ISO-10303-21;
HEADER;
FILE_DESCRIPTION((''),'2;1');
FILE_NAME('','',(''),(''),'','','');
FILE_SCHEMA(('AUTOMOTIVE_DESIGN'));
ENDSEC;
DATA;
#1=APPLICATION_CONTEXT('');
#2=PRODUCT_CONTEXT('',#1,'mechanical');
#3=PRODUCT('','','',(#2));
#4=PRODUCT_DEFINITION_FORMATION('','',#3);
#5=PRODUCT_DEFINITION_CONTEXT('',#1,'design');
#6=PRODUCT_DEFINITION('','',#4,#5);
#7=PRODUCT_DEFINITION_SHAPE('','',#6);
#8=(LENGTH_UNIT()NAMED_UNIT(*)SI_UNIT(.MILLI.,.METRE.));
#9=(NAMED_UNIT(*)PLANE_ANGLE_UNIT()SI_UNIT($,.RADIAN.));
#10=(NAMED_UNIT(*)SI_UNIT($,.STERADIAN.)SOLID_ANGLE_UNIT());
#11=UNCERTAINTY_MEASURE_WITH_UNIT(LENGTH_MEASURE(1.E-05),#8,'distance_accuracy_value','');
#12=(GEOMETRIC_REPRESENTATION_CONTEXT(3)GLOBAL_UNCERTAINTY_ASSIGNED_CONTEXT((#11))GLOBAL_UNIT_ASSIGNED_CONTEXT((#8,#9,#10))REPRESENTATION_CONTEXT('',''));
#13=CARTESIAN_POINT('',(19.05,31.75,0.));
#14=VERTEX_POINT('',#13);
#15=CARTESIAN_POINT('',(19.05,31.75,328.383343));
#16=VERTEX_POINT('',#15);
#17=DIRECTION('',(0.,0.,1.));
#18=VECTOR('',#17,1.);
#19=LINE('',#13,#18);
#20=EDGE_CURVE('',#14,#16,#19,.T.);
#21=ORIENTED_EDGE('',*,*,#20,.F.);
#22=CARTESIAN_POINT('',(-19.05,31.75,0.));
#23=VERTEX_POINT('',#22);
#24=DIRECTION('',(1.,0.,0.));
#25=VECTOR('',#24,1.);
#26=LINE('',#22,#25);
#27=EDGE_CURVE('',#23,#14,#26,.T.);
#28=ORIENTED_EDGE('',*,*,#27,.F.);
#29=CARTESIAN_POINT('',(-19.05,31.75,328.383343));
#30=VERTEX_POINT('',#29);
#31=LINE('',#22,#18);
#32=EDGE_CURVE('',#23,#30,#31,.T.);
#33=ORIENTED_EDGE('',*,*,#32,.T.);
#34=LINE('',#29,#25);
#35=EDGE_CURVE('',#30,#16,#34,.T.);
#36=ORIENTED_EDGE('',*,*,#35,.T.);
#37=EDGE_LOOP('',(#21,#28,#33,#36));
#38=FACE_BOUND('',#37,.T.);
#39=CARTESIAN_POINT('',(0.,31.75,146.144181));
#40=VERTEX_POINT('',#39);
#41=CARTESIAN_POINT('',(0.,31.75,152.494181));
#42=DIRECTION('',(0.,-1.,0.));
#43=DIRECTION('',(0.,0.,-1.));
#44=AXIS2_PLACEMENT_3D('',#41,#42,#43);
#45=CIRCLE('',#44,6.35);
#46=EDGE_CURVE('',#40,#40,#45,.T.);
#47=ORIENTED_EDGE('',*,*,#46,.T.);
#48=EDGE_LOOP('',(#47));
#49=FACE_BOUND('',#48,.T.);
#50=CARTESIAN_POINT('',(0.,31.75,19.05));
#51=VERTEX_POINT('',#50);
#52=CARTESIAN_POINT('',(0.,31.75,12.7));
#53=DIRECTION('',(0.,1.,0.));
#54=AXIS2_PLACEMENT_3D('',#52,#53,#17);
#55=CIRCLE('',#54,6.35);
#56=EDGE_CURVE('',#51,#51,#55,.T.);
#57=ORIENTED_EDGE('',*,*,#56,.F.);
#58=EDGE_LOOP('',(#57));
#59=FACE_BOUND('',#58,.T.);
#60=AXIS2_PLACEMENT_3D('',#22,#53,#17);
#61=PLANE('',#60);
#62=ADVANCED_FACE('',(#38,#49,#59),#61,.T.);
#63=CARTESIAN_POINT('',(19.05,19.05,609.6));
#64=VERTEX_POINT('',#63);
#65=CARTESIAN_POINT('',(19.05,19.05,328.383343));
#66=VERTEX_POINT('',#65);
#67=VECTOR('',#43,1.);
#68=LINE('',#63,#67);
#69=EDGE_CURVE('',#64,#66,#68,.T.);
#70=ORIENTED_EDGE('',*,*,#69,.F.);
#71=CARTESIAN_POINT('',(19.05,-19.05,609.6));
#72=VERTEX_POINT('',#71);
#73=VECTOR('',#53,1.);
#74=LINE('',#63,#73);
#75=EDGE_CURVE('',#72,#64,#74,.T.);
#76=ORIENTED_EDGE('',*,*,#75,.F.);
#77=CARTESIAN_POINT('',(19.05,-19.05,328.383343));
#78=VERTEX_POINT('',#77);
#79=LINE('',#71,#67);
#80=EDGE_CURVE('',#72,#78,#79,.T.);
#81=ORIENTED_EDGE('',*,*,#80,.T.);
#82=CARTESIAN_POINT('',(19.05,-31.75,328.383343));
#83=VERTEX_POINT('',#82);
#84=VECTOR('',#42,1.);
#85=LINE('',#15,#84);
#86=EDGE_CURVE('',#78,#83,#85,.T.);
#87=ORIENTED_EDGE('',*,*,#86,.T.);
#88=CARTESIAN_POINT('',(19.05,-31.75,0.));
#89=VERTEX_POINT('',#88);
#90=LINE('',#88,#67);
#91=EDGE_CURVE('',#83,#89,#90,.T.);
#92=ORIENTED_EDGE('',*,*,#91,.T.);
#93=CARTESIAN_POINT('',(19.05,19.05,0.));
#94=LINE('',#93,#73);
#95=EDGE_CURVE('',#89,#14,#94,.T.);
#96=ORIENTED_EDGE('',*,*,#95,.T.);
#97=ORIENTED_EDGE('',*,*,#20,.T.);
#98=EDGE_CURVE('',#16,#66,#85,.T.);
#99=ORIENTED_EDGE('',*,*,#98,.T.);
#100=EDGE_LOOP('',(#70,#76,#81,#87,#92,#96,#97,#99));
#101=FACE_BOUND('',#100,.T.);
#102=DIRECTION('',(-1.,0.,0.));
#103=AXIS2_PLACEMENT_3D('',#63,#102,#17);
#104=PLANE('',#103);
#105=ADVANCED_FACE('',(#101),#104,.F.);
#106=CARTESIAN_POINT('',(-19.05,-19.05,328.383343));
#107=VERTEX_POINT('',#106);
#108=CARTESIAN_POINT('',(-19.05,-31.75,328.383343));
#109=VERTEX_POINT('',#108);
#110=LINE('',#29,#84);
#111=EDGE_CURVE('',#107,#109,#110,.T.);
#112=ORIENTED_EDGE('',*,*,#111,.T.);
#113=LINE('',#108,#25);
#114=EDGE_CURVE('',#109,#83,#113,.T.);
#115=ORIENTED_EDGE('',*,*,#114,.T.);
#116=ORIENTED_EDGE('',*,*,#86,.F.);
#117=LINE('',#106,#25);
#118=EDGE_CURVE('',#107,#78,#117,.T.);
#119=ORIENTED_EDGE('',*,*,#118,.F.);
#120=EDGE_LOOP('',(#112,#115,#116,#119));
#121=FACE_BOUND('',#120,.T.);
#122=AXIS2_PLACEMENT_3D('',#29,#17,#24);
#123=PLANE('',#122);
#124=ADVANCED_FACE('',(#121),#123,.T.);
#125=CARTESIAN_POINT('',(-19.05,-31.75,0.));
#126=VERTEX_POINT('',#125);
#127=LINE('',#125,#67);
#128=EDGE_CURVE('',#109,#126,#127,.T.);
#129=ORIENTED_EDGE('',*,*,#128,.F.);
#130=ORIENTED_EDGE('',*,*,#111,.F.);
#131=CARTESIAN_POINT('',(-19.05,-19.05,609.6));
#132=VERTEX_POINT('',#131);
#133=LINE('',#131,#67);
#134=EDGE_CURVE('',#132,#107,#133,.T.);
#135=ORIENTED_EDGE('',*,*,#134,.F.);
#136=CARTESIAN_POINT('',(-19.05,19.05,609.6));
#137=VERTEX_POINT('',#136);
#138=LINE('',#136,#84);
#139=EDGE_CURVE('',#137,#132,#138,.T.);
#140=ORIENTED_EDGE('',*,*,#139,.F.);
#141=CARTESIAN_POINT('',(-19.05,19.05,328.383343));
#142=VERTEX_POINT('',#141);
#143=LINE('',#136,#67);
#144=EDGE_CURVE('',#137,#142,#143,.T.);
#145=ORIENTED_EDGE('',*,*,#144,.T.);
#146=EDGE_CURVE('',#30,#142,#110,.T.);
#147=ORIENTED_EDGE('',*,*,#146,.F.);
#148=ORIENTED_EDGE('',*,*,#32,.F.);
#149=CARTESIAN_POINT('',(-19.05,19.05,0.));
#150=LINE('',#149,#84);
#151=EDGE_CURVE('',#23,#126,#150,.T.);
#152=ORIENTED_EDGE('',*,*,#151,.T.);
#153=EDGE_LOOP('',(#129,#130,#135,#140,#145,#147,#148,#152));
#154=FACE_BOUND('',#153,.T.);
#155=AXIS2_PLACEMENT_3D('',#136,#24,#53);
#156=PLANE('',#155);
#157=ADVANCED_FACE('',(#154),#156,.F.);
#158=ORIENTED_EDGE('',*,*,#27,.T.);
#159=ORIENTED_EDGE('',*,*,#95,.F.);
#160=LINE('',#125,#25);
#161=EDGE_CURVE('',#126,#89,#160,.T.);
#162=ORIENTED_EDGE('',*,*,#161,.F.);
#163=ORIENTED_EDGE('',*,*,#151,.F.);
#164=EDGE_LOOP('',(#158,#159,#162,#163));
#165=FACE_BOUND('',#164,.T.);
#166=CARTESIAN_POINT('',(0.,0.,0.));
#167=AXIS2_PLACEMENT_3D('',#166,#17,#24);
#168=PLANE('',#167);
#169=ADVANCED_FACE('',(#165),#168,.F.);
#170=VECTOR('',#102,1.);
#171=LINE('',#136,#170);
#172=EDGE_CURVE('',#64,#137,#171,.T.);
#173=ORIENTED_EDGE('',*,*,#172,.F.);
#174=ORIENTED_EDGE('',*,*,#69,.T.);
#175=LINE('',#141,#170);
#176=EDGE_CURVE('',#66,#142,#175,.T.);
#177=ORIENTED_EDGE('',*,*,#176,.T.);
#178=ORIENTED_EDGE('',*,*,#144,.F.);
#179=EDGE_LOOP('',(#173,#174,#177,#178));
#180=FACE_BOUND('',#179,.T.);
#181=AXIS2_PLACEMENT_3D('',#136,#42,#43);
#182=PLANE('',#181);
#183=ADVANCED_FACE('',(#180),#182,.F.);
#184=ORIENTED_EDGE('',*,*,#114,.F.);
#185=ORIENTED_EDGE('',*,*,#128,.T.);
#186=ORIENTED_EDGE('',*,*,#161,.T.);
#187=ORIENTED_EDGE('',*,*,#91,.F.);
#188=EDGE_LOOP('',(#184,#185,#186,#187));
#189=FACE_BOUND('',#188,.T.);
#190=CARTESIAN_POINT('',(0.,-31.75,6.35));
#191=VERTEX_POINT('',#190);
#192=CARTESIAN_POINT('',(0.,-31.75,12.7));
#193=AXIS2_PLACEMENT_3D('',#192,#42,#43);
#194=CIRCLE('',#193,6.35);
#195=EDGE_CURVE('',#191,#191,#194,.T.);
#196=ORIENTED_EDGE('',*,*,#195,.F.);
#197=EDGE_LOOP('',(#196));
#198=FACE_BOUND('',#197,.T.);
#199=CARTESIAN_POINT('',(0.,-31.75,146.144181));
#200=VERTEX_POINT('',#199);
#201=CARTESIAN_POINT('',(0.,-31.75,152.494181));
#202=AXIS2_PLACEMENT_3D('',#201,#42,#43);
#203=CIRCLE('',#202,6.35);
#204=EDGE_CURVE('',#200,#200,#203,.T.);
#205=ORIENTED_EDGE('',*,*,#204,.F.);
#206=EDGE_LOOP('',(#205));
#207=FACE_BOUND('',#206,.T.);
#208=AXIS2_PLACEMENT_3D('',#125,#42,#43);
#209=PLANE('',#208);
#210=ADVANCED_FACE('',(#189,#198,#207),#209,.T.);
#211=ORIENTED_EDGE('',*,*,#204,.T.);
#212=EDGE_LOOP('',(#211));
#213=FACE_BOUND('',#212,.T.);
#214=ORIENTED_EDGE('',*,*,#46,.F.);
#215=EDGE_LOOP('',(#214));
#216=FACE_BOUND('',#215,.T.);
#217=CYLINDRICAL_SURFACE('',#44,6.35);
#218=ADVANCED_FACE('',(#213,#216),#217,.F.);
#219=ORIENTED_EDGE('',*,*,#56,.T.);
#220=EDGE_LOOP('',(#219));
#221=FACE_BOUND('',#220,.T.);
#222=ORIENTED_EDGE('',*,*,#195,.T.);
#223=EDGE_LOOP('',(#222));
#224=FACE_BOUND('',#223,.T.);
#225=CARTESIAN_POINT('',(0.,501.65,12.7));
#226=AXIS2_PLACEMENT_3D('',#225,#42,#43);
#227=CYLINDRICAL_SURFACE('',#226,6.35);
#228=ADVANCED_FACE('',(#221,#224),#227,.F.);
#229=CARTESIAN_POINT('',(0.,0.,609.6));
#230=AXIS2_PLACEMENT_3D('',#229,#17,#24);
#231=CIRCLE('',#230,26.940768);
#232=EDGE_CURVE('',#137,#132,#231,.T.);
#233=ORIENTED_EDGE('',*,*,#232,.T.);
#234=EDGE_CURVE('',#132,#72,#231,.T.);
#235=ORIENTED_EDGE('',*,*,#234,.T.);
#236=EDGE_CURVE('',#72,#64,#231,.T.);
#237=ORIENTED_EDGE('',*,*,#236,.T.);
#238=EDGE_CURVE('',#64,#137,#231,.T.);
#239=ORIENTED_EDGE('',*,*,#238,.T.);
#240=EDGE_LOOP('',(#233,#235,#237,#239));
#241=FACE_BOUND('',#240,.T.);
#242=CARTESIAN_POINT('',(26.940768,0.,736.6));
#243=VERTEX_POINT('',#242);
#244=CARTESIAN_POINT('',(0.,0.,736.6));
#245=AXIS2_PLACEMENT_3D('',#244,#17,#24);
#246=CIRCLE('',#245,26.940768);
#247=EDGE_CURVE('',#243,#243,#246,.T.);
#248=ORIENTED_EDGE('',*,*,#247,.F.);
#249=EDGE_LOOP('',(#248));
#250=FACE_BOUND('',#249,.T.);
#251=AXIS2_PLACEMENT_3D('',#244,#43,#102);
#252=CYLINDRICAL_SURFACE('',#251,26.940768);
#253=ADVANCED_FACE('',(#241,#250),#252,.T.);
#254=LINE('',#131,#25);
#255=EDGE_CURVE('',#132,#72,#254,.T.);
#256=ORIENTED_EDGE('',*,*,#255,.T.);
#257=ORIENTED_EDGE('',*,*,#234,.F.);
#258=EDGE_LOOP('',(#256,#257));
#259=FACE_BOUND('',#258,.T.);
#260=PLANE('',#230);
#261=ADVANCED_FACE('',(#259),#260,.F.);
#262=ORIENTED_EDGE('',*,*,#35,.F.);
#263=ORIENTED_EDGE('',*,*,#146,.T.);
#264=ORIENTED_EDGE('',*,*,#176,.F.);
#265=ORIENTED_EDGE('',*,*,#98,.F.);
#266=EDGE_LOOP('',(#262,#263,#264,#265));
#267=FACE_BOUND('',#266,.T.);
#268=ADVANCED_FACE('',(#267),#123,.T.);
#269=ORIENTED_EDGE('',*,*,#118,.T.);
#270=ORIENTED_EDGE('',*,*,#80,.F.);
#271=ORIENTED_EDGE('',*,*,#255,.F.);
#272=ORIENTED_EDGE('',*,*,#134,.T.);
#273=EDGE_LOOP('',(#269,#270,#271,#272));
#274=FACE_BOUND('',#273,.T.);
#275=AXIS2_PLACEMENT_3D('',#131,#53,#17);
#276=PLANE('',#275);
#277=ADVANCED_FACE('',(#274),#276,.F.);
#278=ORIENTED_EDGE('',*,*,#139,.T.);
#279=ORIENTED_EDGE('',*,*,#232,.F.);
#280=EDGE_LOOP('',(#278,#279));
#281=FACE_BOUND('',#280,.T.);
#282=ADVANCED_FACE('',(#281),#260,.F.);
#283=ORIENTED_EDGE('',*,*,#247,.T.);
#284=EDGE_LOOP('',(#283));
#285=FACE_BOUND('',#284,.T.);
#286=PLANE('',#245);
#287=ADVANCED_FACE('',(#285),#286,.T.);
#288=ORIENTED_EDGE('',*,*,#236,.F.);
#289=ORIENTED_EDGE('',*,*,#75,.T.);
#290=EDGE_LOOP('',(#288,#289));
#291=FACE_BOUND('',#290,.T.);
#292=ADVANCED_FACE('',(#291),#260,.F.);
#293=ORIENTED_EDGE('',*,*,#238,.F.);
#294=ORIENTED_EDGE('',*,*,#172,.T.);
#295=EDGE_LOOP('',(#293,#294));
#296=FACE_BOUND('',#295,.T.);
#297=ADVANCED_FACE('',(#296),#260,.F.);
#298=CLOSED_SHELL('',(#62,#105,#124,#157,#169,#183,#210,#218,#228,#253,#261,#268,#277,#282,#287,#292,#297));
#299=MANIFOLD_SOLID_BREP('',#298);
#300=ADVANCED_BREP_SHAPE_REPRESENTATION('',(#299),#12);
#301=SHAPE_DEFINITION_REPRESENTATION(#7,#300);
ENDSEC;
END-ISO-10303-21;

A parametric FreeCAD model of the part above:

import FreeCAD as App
import Part
import Sketcher
Q = App.Units.Quantity

doc = App.newDocument("Part")
params = doc.addObject("Spreadsheet::Sheet", "Params")
for row, (alias, value) in enumerate([
    ("sketch1_width", "1.5 in"),
    ("pad1_length", "24 in"),
    ("pad2_length", "5 in"),
    ("sketch3_diameter", "0.5 in"),
    ("pocket1_length", "5 in"),
    ("sketch4_width", "2.5 in"),
    ("pad3_length", "1.5 in"),
    ("sketch5_diameter", "0.5 in"),
    ("sketch6_diameter", "0.5 in"),
    ("pocket3_length", "21 in"),
], start=1):
    params.set(f"A{row}", alias)
    params.set(f"B{row}", "=" + value)
    params.setAlias(f"B{row}", alias)

body = doc.addObject("PartDesign::Body", "Body")

sketch1 = doc.addObject("Sketcher::SketchObject", "Sketch")
body.addObject(sketch1)
sketch1.AttachmentSupport = (doc.XY_Plane, [""])
sketch1.MapMode = "FlatFace"
sketch1.addGeometry(Part.LineSegment(App.Vector(-19, 19, 0), App.Vector(-19, -19, 0)), False)
sketch1.addGeometry(Part.LineSegment(App.Vector(-19, -19, 0), App.Vector(19, -19, 0)), False)
sketch1.addGeometry(Part.LineSegment(App.Vector(19, -19, 0), App.Vector(19, 19, 0)), False)
sketch1.addGeometry(Part.LineSegment(App.Vector(19, 19, 0), App.Vector(-19, 19, 0)), False)
sketch1.addConstraint(Sketcher.Constraint("Coincident", 0, 2, 1, 1))
sketch1.addConstraint(Sketcher.Constraint("Coincident", 1, 2, 2, 1))
sketch1.addConstraint(Sketcher.Constraint("Coincident", 2, 2, 3, 1))
sketch1.addConstraint(Sketcher.Constraint("Coincident", 3, 2, 0, 1))
sketch1.addConstraint(Sketcher.Constraint("Vertical", 0))
sketch1.addConstraint(Sketcher.Constraint("Horizontal", 1))
sketch1.addConstraint(Sketcher.Constraint("Vertical", 2))
sketch1.addConstraint(Sketcher.Constraint("Horizontal", 3))
sketch1.addConstraint(Sketcher.Constraint("Symmetric", 0, 2, 2, 2, -1, 1))
sketch1.addConstraint(Sketcher.Constraint("Equal", 3, 0))
sketch1.addConstraint(Sketcher.Constraint("DistanceX", 1, 1, 1, 2, Q("1.5 in")))
sketch1.setExpression("Constraints[10]", "Params.sketch1_width")
pad1 = doc.addObject("PartDesign::Pad", "Pad")
body.addObject(pad1)
pad1.Profile = sketch1
pad1.setExpression("Length", "Params.pad1_length")

sketch2 = doc.addObject("Sketcher::SketchObject", "Sketch001")
body.addObject(sketch2)
sketch2.AttachmentSupport = (doc.XY_Plane, [""])
sketch2.MapMode = "FlatFace"
sketch2.AttachmentOffset = App.Placement(App.Vector(0, 0, 24 * 25.4), App.Rotation())
sketch2.addGeometry(Part.Circle(App.Vector(0, 0, 0), App.Vector(0, 0, 1), 27), False)
sketch2.addConstraint(Sketcher.Constraint("Coincident", 0, 3, -1, 1))
sketch2.addConstraint(Sketcher.Constraint("Diameter", 0, Q("53.881537 mm")))
pad2 = doc.addObject("PartDesign::Pad", "Pad001")
body.addObject(pad2)
pad2.Profile = sketch2
pad2.setExpression("Length", "Params.pad2_length")

sketch3 = doc.addObject("Sketcher::SketchObject", "Sketch002")
body.addObject(sketch3)
sketch3.AttachmentSupport = (doc.XZ_Plane, [""])
sketch3.MapMode = "FlatFace"
sketch3.AttachmentOffset = App.Placement(App.Vector(0, 0, 0.75 * 25.4), App.Rotation())
sketch3.addGeometry(Part.Circle(App.Vector(0, 152, 0), App.Vector(0, 0, 1), 6), False)
sketch3.addConstraint(Sketcher.Constraint("PointOnObject", 0, 3, -2))
sketch3.addConstraint(Sketcher.Constraint("Diameter", 0, Q("0.5 in")))
sketch3.addConstraint(Sketcher.Constraint("DistanceY", -1, 1, 0, 3, Q("6 in")))
sketch3.setExpression("Constraints[1]", "Params.sketch3_diameter")
pocket1 = doc.addObject("PartDesign::Pocket", "Pocket")
body.addObject(pocket1)
pocket1.Profile = sketch3
pocket1.setExpression("Length", "Params.pocket1_length")

sketch4 = doc.addObject("Sketcher::SketchObject", "Sketch003")
body.addObject(sketch4)
sketch4.AttachmentSupport = (doc.YZ_Plane, [""])
sketch4.MapMode = "FlatFace"
sketch4.AttachmentOffset = App.Placement(App.Vector(0, 0, 0.75 * 25.4), App.Rotation())
sketch4.addGeometry(Part.LineSegment(App.Vector(32, 0, 0), App.Vector(32, 328, 0)), False)
sketch4.addGeometry(Part.LineSegment(App.Vector(32, 328, 0), App.Vector(-32, 328, 0)), False)
sketch4.addGeometry(Part.LineSegment(App.Vector(-32, 328, 0), App.Vector(-32, 0, 0)), False)
sketch4.addGeometry(Part.LineSegment(App.Vector(-32, 0, 0), App.Vector(32, 0, 0)), False)
sketch4.addConstraint(Sketcher.Constraint("Coincident", 0, 2, 1, 1))
sketch4.addConstraint(Sketcher.Constraint("Coincident", 1, 2, 2, 1))
sketch4.addConstraint(Sketcher.Constraint("Coincident", 2, 2, 3, 1))
sketch4.addConstraint(Sketcher.Constraint("Coincident", 3, 2, 0, 1))
sketch4.addConstraint(Sketcher.Constraint("Vertical", 0))
sketch4.addConstraint(Sketcher.Constraint("Horizontal", 1))
sketch4.addConstraint(Sketcher.Constraint("Vertical", 2))
sketch4.addConstraint(Sketcher.Constraint("Horizontal", 3))
sketch4.addConstraint(Sketcher.Constraint("Symmetric", 2, 2, 3, 2, -1, 1))
sketch4.addConstraint(Sketcher.Constraint("DistanceX", 1, 2, 1, 1, Q("2.5 in")))
sketch4.addConstraint(Sketcher.Constraint("DistanceY", 0, 1, 0, 2, Q("328.383343 mm")))
sketch4.setExpression("Constraints[9]", "Params.sketch4_width")
pad3 = doc.addObject("PartDesign::Pad", "Pad002")
body.addObject(pad3)
pad3.Profile = sketch4
pad3.setExpression("Length", "Params.pad3_length")
pad3.Reversed = True

sketch5 = doc.addObject("Sketcher::SketchObject", "Sketch004")
body.addObject(sketch5)
sketch5.AttachmentSupport = (doc.XZ_Plane, [""])
sketch5.MapMode = "FlatFace"
sketch5.AttachmentOffset = App.Placement(App.Vector(0, 0, 1.25 * 25.4), App.Rotation())
sketch5.addGeometry(Part.Circle(App.Vector(0, 152, 0), App.Vector(0, 0, 1), 6), False)
sketch5.addConstraint(Sketcher.Constraint("PointOnObject", 0, 3, -2))
sketch5.addConstraint(Sketcher.Constraint("Diameter", 0, Q("0.5 in")))
sketch5.addConstraint(Sketcher.Constraint("DistanceY", -1, 1, 0, 3, Q("152.494181 mm")))
sketch5.setExpression("Constraints[1]", "Params.sketch5_diameter")
pocket2 = doc.addObject("PartDesign::Pocket", "Pocket001")
body.addObject(pocket2)
pocket2.Profile = sketch5
pocket2.Type = "ThroughAll"

sketch6 = doc.addObject("Sketcher::SketchObject", "Sketch005")
body.addObject(sketch6)
sketch6.AttachmentSupport = (doc.XZ_Plane, [""])
sketch6.MapMode = "FlatFace"
sketch6.AttachmentOffset = App.Placement(App.Vector(0, 0, 1.25 * 25.4), App.Rotation())
sketch6.addGeometry(Part.Circle(App.Vector(0, 13, 0), App.Vector(0, 0, 1), 6), False)
sketch6.addConstraint(Sketcher.Constraint("PointOnObject", 0, 3, -2))
sketch6.addConstraint(Sketcher.Constraint("Diameter", 0, Q("0.5 in")))
sketch6.addConstraint(Sketcher.Constraint("DistanceY", -1, 1, 0, 3, Q("0.5 in")))
sketch6.setExpression("Constraints[1]", "Params.sketch6_diameter")
pocket3 = doc.addObject("PartDesign::Pocket", "Pocket002")
body.addObject(pocket3)
pocket3.Profile = sketch6
pocket3.setExpression("Length", "Params.pocket3_length")

doc.recompute()
